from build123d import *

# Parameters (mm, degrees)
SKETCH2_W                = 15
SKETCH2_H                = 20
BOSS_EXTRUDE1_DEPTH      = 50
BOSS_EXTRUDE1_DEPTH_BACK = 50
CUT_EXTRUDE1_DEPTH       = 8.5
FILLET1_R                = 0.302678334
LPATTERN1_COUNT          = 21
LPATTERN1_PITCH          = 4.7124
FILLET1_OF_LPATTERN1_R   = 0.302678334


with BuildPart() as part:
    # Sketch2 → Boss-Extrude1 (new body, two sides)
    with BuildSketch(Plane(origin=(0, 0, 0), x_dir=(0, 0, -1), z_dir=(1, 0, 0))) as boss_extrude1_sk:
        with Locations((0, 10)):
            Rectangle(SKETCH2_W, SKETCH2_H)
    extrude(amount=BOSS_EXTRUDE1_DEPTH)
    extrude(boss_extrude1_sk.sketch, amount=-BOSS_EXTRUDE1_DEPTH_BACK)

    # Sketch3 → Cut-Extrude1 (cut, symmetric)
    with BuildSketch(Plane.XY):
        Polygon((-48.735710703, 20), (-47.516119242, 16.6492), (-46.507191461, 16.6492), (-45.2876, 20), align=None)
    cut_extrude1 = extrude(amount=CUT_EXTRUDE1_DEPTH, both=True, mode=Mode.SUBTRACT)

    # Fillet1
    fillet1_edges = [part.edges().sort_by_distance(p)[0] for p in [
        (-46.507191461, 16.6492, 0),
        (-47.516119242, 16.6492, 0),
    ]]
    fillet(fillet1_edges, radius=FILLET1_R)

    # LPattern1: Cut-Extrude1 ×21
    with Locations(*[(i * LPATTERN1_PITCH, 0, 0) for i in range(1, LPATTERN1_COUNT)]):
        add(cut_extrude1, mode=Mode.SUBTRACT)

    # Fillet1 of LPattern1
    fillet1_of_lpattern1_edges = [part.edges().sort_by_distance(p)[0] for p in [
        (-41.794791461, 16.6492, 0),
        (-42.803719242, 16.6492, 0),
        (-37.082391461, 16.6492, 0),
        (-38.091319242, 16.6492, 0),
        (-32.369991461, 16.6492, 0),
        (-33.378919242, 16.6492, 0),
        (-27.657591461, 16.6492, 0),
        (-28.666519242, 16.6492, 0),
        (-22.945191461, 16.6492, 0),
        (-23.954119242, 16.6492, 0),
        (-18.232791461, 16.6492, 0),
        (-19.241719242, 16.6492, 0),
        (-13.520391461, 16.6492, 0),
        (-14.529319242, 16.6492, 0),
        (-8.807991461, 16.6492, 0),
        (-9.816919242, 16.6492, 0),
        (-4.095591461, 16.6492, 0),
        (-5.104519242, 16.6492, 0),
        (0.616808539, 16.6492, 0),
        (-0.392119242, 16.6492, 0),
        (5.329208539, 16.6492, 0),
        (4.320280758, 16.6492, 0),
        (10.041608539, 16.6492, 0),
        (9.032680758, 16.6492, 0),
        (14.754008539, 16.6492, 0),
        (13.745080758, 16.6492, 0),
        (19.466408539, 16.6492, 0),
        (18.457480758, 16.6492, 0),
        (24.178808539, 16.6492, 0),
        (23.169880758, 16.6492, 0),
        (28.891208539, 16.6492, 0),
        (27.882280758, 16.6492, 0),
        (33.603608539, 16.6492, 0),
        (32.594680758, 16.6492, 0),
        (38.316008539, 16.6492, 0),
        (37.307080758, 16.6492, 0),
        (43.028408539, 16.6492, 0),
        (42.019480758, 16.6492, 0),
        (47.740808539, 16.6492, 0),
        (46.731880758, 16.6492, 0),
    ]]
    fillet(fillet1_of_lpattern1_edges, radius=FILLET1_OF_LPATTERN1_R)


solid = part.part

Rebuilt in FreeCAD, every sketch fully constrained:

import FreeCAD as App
import Part
import Sketcher
from FreeCAD import Vector
Q = App.Units.Quantity


def edges_at(feature, points):
    """Names of the edges that pass closest to the given points."""
    edges = feature.Shape.Edges
    near = lambda p: min(range(len(edges)), key=lambda i: edges[i].distToShape(Part.Vertex(*p))[0])
    return sorted({f"Edge{near(p) + 1}" for p in points})

doc = App.newDocument("Part")
body = doc.addObject("PartDesign::Body", "Body")

# Sketch on YZ plane
sketch1 = body.newObject("Sketcher::SketchObject", "Sketch")
sketch1.AttachmentSupport = (doc.getObject("YZ_Plane"), [""])
sketch1.MapMode = "FlatFace"
sketch1.addGeometry([
    Part.LineSegment(Vector(20, 7.5, 0), Vector(0, 7.5, 0)),
    Part.LineSegment(Vector(0, 7.5, 0), Vector(0, -7.5, 0)),
    Part.LineSegment(Vector(0, -7.5, 0), Vector(20, -7.5, 0)),
    Part.LineSegment(Vector(20, -7.5, 0), Vector(20, 7.5, 0)),
], False)
sketch1.addConstraint([
    Sketcher.Constraint("Coincident", 0, 2, 1, 1),
    Sketcher.Constraint("Coincident", 1, 2, 2, 1),
    Sketcher.Constraint("Coincident", 2, 2, 3, 1),
    Sketcher.Constraint("Coincident", 3, 2, 0, 1),
    Sketcher.Constraint("Horizontal", 0),
    Sketcher.Constraint("Vertical", 1),
    Sketcher.Constraint("Horizontal", 2),
    Sketcher.Constraint("Vertical", 3),
    Sketcher.Constraint("Symmetric", 0, 2, 1, 2, -1, 1),
    Sketcher.Constraint("DistanceX", 0, 2, 0, 1, 20.0),
    Sketcher.Constraint("DistanceY", 1, 2, 1, 1, 15.0),
])
pad1 = body.newObject("PartDesign::Pad", "Pad")
pad1.Profile = sketch1
pad1.Type = "TwoLengths"
pad1.Length = 50
pad1.Length2 = 50

# Sketch on XY plane
sketch2 = body.newObject("Sketcher::SketchObject", "Sketch001")
sketch2.AttachmentSupport = (doc.getObject("XY_Plane"), [""])
sketch2.MapMode = "FlatFace"
sketch2.addGeometry([
    Part.LineSegment(Vector(-48.735711, 20, 0), Vector(-47.516119, 16.6492, 0)),
    Part.LineSegment(Vector(-47.516119, 16.6492, 0), Vector(-46.507191, 16.6492, 0)),
    Part.LineSegment(Vector(-46.507191, 16.6492, 0), Vector(-45.2876, 20, 0)),
    Part.LineSegment(Vector(-45.2876, 20, 0), Vector(-48.735711, 20, 0)),
], False)
sketch2.addConstraint([
    Sketcher.Constraint("Coincident", 0, 2, 1, 1),
    Sketcher.Constraint("Coincident", 1, 2, 2, 1),
    Sketcher.Constraint("Coincident", 2, 2, 3, 1),
    Sketcher.Constraint("Coincident", 3, 2, 0, 1),
    Sketcher.Constraint("Horizontal", 1),
    Sketcher.Constraint("Horizontal", 3),
    Sketcher.Constraint("Equal", 0, 2),
    Sketcher.Constraint("Angle", 0, Q("-70 deg")),
    Sketcher.Constraint("DistanceY", -1, 1, 2, 2, 20.0),
    Sketcher.Constraint("DistanceX", 3, 2, 3, 1, 3.448111),
    Sketcher.Constraint("DistanceY", -1, 1, 0, 2, 16.6492),
    Sketcher.Constraint("DistanceX", 2, 2, -1, 1, 45.2876),
])
pocket1 = body.newObject("PartDesign::Pocket", "Pocket")
pocket1.Profile = sketch2
pocket1.Length = 17
pocket1.Midplane = True
doc.recompute()

fillet = body.newObject("PartDesign::Fillet", "Fillet")
fillet.Base = (pocket1, edges_at(pocket1, [(-46.507, 16.649, 0), (-47.516, 16.649, 0)]))
fillet.Radius = 0.302678
doc.recompute()

linearpattern = body.newObject("PartDesign::LinearPattern", "LinearPattern")
linearpattern.Originals = [pocket1]
linearpattern.Direction = (doc.getObject("X_Axis"), [""])
linearpattern.Mode = "offset"
linearpattern.Offset = 4.7124
linearpattern.Occurrences = 21
body.Tip = linearpattern
doc.recompute()

fillet2 = body.newObject("PartDesign::Fillet", "Fillet001")
fillet2.Base = (linearpattern, edges_at(linearpattern, [
    (-41.795, 16.649, 0),
    (-42.804, 16.649, 0),
    (-37.082, 16.649, 0),
    (-38.091, 16.649, 0),
    (-32.37, 16.649, 0),
    (-33.379, 16.649, 0),
    (-27.658, 16.649, 0),
    (-28.667, 16.649, 0),
    (-22.945, 16.649, 0),
    (-23.954, 16.649, 0),
    (-18.233, 16.649, 0),
    (-19.242, 16.649, 0),
    (-13.52, 16.649, 0),
    (-14.529, 16.649, 0),
    (-8.808, 16.649, 0),
    (-9.817, 16.649, 0),
    (-4.096, 16.649, 0),
    (-5.105, 16.649, 0),
    (0.617, 16.649, 0),
    (-0.392, 16.649, 0),
    (5.329, 16.649, 0),
    (4.32, 16.649, 0),
    (10.042, 16.649, 0),
    (9.033, 16.649, 0),
    (14.754, 16.649, 0),
    (13.745, 16.649, 0),
    (19.466, 16.649, 0),
    (18.457, 16.649, 0),
    (24.179, 16.649, 0),
    (23.17, 16.649, 0),
    (28.891, 16.649, 0),
    (27.882, 16.649, 0),
    (33.604, 16.649, 0),
    (32.595, 16.649, 0),
    (38.316, 16.649, 0),
    (37.307, 16.649, 0),
    (43.028, 16.649, 0),
    (42.019, 16.649, 0),
    (47.741, 16.649, 0),
    (46.732, 16.649, 0),
]))
fillet2.Radius = 0.302678

doc.recompute()
